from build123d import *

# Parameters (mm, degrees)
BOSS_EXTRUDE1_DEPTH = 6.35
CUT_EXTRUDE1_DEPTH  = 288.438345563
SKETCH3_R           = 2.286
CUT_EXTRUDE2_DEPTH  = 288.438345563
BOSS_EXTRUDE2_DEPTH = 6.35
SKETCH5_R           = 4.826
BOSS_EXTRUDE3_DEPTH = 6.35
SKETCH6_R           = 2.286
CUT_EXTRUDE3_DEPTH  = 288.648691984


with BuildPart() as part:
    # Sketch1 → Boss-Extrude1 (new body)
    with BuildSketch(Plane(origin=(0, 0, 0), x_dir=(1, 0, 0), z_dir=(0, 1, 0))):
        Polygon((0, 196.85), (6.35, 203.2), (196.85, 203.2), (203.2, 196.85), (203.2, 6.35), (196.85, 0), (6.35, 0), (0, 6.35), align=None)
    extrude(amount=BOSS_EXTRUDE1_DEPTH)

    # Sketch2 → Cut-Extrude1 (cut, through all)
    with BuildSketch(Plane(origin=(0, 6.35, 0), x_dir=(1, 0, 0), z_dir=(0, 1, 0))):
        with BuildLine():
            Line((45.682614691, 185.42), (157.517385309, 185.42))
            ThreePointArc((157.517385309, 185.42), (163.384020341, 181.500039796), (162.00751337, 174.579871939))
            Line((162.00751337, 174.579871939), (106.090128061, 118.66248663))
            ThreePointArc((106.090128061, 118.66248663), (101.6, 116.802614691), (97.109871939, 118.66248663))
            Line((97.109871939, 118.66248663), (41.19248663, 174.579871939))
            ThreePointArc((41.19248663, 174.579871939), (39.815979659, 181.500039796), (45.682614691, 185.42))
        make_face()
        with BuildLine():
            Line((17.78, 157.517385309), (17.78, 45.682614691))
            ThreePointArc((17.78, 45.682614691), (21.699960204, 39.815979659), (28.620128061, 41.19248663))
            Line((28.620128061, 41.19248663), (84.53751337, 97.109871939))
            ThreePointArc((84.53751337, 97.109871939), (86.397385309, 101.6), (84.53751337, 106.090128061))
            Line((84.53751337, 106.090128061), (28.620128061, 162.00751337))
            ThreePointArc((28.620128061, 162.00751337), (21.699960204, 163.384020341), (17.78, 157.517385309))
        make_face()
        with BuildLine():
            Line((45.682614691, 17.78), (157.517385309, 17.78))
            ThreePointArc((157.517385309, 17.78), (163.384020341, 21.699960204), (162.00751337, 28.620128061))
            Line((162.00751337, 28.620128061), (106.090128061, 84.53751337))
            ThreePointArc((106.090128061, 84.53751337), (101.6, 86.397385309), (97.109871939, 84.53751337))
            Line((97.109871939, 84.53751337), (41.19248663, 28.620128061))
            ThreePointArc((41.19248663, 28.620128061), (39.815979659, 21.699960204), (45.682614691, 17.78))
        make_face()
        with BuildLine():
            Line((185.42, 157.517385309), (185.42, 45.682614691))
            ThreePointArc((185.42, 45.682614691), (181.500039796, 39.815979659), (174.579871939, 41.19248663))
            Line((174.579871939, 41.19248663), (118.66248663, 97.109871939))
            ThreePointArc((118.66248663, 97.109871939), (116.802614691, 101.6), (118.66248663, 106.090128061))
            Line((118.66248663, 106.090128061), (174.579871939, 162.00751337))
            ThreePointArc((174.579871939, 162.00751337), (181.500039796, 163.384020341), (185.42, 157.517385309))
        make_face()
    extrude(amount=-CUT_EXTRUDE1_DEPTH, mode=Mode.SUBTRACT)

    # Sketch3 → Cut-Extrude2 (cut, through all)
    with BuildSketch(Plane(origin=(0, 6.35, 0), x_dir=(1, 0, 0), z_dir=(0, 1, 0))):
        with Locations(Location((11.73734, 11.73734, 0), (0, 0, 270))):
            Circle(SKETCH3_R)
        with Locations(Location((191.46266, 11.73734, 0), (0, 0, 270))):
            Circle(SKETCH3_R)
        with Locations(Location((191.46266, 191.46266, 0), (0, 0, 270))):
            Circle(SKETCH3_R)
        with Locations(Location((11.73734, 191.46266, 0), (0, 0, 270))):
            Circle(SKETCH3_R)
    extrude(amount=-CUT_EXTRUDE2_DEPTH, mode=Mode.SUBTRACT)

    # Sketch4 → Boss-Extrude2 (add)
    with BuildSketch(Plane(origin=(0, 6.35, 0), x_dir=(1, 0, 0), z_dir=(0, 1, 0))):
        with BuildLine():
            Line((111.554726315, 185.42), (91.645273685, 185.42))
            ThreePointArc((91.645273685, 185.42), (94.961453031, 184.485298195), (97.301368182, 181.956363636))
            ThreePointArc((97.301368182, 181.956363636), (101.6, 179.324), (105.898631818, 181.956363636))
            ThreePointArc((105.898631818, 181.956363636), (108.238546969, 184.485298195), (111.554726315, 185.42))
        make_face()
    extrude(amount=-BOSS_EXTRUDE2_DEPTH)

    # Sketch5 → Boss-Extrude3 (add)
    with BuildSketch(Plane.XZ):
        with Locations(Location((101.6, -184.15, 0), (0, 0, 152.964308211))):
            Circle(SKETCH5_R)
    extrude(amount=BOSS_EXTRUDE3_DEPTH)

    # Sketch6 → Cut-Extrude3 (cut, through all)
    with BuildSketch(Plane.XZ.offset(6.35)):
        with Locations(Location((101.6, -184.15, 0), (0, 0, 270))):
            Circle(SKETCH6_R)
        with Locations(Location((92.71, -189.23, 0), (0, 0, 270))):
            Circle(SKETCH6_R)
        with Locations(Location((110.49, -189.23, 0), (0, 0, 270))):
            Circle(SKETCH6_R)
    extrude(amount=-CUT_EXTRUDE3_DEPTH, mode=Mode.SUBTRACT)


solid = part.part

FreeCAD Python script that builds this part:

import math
import FreeCAD as App
import Part
import Sketcher
from FreeCAD import Vector
Q = App.Units.Quantity

doc = App.newDocument("Part")
body = doc.addObject("PartDesign::Body", "Body")

sketch1 = body.newObject("Sketcher::SketchObject", "Sketch")
sketch1.AttachmentSupport = (doc.getObject("XZ_Plane"), [""])
sketch1.MapMode = "FlatFace"
sketch1.addGeometry(Part.LineSegment(Vector(6, -203, 0), Vector(0, -197, 0)), False)
sketch1.addGeometry(Part.LineSegment(Vector(0, -197, 0), Vector(0, -6, 0)), False)
sketch1.addGeometry(Part.LineSegment(Vector(0, -6, 0), Vector(6, 0, 0)), False)
sketch1.addGeometry(Part.LineSegment(Vector(6, 0, 0), Vector(197, 0, 0)), False)
sketch1.addGeometry(Part.LineSegment(Vector(197, 0, 0), Vector(203, -6, 0)), False)
sketch1.addGeometry(Part.LineSegment(Vector(203, -6, 0), Vector(203, -197, 0)), False)
sketch1.addGeometry(Part.LineSegment(Vector(203, -197, 0), Vector(197, -203, 0)), False)
sketch1.addGeometry(Part.LineSegment(Vector(197, -203, 0), Vector(6, -203, 0)), False)
sketch1.addConstraint(Sketcher.Constraint("Coincident", 0, 2, 1, 1))
sketch1.addConstraint(Sketcher.Constraint("Coincident", 1, 2, 2, 1))
sketch1.addConstraint(Sketcher.Constraint("Coincident", 2, 2, 3, 1))
sketch1.addConstraint(Sketcher.Constraint("Coincident", 3, 2, 4, 1))
sketch1.addConstraint(Sketcher.Constraint("Coincident", 4, 2, 5, 1))
sketch1.addConstraint(Sketcher.Constraint("Coincident", 5, 2, 6, 1))
sketch1.addConstraint(Sketcher.Constraint("Coincident", 6, 2, 7, 1))
sketch1.addConstraint(Sketcher.Constraint("Coincident", 7, 2, 0, 1))
sketch1.addConstraint(Sketcher.Constraint("Vertical", 1))
sketch1.addConstraint(Sketcher.Constraint("Horizontal", 3))
sketch1.addConstraint(Sketcher.Constraint("Vertical", 5))
sketch1.addConstraint(Sketcher.Constraint("Horizontal", 7))
sketch1.addConstraint(Sketcher.Constraint("PointOnObject", 0, 2, -2))
sketch1.addConstraint(Sketcher.Constraint("PointOnObject", 2, 2, -1))
sketch1.addConstraint(Sketcher.Constraint("Perpendicular", 0, 2))
sketch1.addConstraint(Sketcher.Constraint("Perpendicular", 2, 4))
sketch1.addConstraint(Sketcher.Constraint("Perpendicular", 4, 6))
sketch1.addConstraint(Sketcher.Constraint("Horizontal", 1, 2, 4, 2))
sketch1.addConstraint(Sketcher.Constraint("Horizontal", 0, 2, 5, 2))
sketch1.addConstraint(Sketcher.Constraint("Vertical", 3, 2, 6, 2))
sketch1.addConstraint(Sketcher.Constraint("Vertical", 2, 2, 7, 2))
sketch1.addConstraint(Sketcher.Constraint("Equal", 7, 1))
sketch1.addConstraint(Sketcher.Constraint("DistanceX", 3, 1, 3, 2, Q("7.5 in")))
sketch1.addConstraint(Sketcher.Constraint("DistanceX", -1, 1, 4, 2, Q("8 in")))
pad1 = body.newObject("PartDesign::Pad", "Pad")
pad1.Profile = sketch1
pad1.Length = Q("0.25 in")
pad1.Reversed = True

sketch2 = body.newObject("Sketcher::SketchObject", "Sketch001")
sketch2.AttachmentSupport = (doc.getObject("XZ_Plane"), [""])
sketch2.MapMode = "FlatFace"
sketch2.AttachmentOffset = App.Placement(Vector(0, 0, -0.25 * 25.4), App.Rotation())
sketch2.addGeometry(Part.LineSegment(Vector(158, -185, 0), Vector(46, -185, 0)), False)
sketch2.addGeometry(Part.ArcOfCircle(Part.Circle(Vector(46, -179, 0), Vector(0, 0, 1), 6), math.radians(135), math.radians(270)), False)
sketch2.addGeometry(Part.LineSegment(Vector(41, -175, 0), Vector(97, -119, 0)), False)
sketch2.addGeometry(Part.ArcOfCircle(Part.Circle(Vector(102, -123, 0), Vector(0, 0, 1), 6), math.radians(45), math.radians(135)), False)
sketch2.addGeometry(Part.LineSegment(Vector(106, -119, 0), Vector(162, -175, 0)), False)
sketch2.addGeometry(Part.ArcOfCircle(Part.Circle(Vector(158, -179, 0), Vector(0, 0, 1), 6), math.radians(-90), math.radians(45)), False)
sketch2.addGeometry(Part.LineSegment(Vector(18, -158, 0), Vector(18, -46, 0)), False)
sketch2.addGeometry(Part.ArcOfCircle(Part.Circle(Vector(24, -46, 0), Vector(0, 0, 1), 6), math.radians(45), math.radians(180)), False)
sketch2.addGeometry(Part.LineSegment(Vector(29, -41, 0), Vector(85, -97, 0)), False)
sketch2.addGeometry(Part.ArcOfCircle(Part.Circle(Vector(80, -102, 0), Vector(0, 0, 1), 6), math.radians(-45), math.radians(45)), False)
sketch2.addGeometry(Part.LineSegment(Vector(85, -106, 0), Vector(29, -162, 0)), False)
sketch2.addGeometry(Part.ArcOfCircle(Part.Circle(Vector(24, -158, 0), Vector(0, 0, 1), 6), math.radians(180), math.radians(315)), False)
sketch2.addGeometry(Part.LineSegment(Vector(46, -18, 0), Vector(158, -18, 0)), False)
sketch2.addGeometry(Part.ArcOfCircle(Part.Circle(Vector(158, -24, 0), Vector(0, 0, 1), 6), math.radians(-45), math.radians(90)), False)
sketch2.addGeometry(Part.LineSegment(Vector(162, -29, 0), Vector(106, -85, 0)), False)
sketch2.addGeometry(Part.ArcOfCircle(Part.Circle(Vector(102, -80, 0), Vector(0, 0, 1), 6), math.radians(-135), math.radians(-45)), False)
sketch2.addGeometry(Part.LineSegment(Vector(97, -85, 0), Vector(41, -29, 0)), False)
sketch2.addGeometry(Part.ArcOfCircle(Part.Circle(Vector(46, -24, 0), Vector(0, 0, 1), 6), math.radians(90), math.radians(225)), False)
sketch2.addGeometry(Part.LineSegment(Vector(185, -46, 0), Vector(185, -158, 0)), False)
sketch2.addGeometry(Part.ArcOfCircle(Part.Circle(Vector(179, -158, 0), Vector(0, 0, 1), 6), math.radians(-135), math.radians(0)), False)
sketch2.addGeometry(Part.LineSegment(Vector(175, -162, 0), Vector(119, -106, 0)), False)
sketch2.addGeometry(Part.ArcOfCircle(Part.Circle(Vector(123, -102, 0), Vector(0, 0, 1), 6), math.radians(135), math.radians(225)), False)
sketch2.addGeometry(Part.LineSegment(Vector(119, -97, 0), Vector(175, -41, 0)), False)
sketch2.addGeometry(Part.ArcOfCircle(Part.Circle(Vector(179, -46, 0), Vector(0, 0, 1), 6), math.radians(0), math.radians(135)), False)
sketch2.addConstraint(Sketcher.Constraint("Tangent", 0, 2, 1, 2))
sketch2.addConstraint(Sketcher.Constraint("Tangent", 1, 1, 2, 1))
sketch2.addConstraint(Sketcher.Constraint("Tangent", 2, 2, 3, 2))
sketch2.addConstraint(Sketcher.Constraint("Tangent", 3, 1, 4, 1))
sketch2.addConstraint(Sketcher.Constraint("Tangent", 4, 2, 5, 2))
sketch2.addConstraint(Sketcher.Constraint("Tangent", 5, 1, 0, 1))
sketch2.addConstraint(Sketcher.Constraint("Tangent", 6, 2, 7, 2))
sketch2.addConstraint(Sketcher.Constraint("Tangent", 7, 1, 8, 1))
sketch2.addConstraint(Sketcher.Constraint("Tangent", 8, 2, 9, 2))
sketch2.addConstraint(Sketcher.Constraint("Tangent", 9, 1, 10, 1))
sketch2.addConstraint(Sketcher.Constraint("Tangent", 10, 2, 11, 2))
sketch2.addConstraint(Sketcher.Constraint("Tangent", 11, 1, 6, 1))
sketch2.addConstraint(Sketcher.Constraint("Tangent", 12, 2, 13, 2))
sketch2.addConstraint(Sketcher.Constraint("Tangent", 13, 1, 14, 1))
sketch2.addConstraint(Sketcher.Constraint("Tangent", 14, 2, 15, 2))
sketch2.addConstraint(Sketcher.Constraint("Tangent", 15, 1, 16, 1))
sketch2.addConstraint(Sketcher.Constraint("Tangent", 16, 2, 17, 2))
sketch2.addConstraint(Sketcher.Constraint("Tangent", 17, 1, 12, 1))
sketch2.addConstraint(Sketcher.Constraint("Tangent", 18, 2, 19, 2))
sketch2.addConstraint(Sketcher.Constraint("Tangent", 19, 1, 20, 1))
sketch2.addConstraint(Sketcher.Constraint("Tangent", 20, 2, 21, 2))
sketch2.addConstraint(Sketcher.Constraint("Tangent", 21, 1, 22, 1))
sketch2.addConstraint(Sketcher.Constraint("Tangent", 22, 2, 23, 2))
sketch2.addConstraint(Sketcher.Constraint("Tangent", 23, 1, 18, 1))
sketch2.addConstraint(Sketcher.Constraint("Horizontal", 0))
sketch2.addConstraint(Sketcher.Constraint("Vertical", 6))
sketch2.addConstraint(Sketcher.Constraint("Horizontal", 12))
sketch2.addConstraint(Sketcher.Constraint("Vertical", 18))
sketch2.addConstraint(Sketcher.Constraint("Equal", 1, 3))
sketch2.addConstraint(Sketcher.Constraint("Equal", 3, 5))
sketch2.addConstraint(Sketcher.Constraint("Equal", 5, 7))
sketch2.addConstraint(Sketcher.Constraint("Equal", 7, 9))
sketch2.addConstraint(Sketcher.Constraint("Equal", 9, 11))
sketch2.addConstraint(Sketcher.Constraint("Equal", 11, 13))
sketch2.addConstraint(Sketcher.Constraint("Equal", 13, 15))
sketch2.addConstraint(Sketcher.Constraint("Equal", 15, 17))
sketch2.addConstraint(Sketcher.Constraint("Equal", 17, 19))
sketch2.addConstraint(Sketcher.Constraint("Equal", 19, 21))
sketch2.addConstraint(Sketcher.Constraint("Equal", 21, 23))
sketch2.addConstraint(Sketcher.Constraint("Perpendicular", 2, 4))
sketch2.addConstraint(Sketcher.Constraint("Parallel", 4, 8))
sketch2.addConstraint(Sketcher.Constraint("Perpendicular", 8, 10))
sketch2.addConstraint(Sketcher.Constraint("Parallel", 10, 14))
sketch2.addConstraint(Sketcher.Constraint("Perpendicular", 14, 16))
sketch2.addConstraint(Sketcher.Constraint("Parallel", 16, 20))
sketch2.addConstraint(Sketcher.Constraint("Perpendicular", 20, 22))
sketch2.addConstraint(Sketcher.Constraint("Horizontal", 11, 3, 19, 3))
sketch2.addConstraint(Sketcher.Constraint("Horizontal", 9, 3, 21, 3))
sketch2.addConstraint(Sketcher.Constraint("Horizontal", 7, 3, 23, 3))
sketch2.addConstraint(Sketcher.Constraint("Vertical", 5, 3, 13, 3))
sketch2.addConstraint(Sketcher.Constraint("Vertical", 3, 3, 15, 3))
sketch2.addConstraint(Sketcher.Constraint("Equal", 12, 6))
sketch2.addConstraint(Sketcher.Constraint("Radius", 1, Q("0.25 in")))
sketch2.addConstraint(Sketcher.Constraint("DistanceX", -1, 1, 3, 3, Q("4 in")))
sketch2.addConstraint(Sketcher.Constraint("DistanceY", 9, 3, -1, 1, Q("4 in")))
sketch2.addConstraint(Sketcher.Constraint("DistanceY", 0, 2, -1, 1, Q("7.3 in")))
sketch2.addConstraint(Sketcher.Constraint("DistanceX", -1, 1, 6, 2, Q("0.7 in")))
sketch2.addConstraint(Sketcher.Constraint("DistanceY", 12, 2, -1, 1, Q("0.7 in")))
sketch2.addConstraint(Sketcher.Constraint("DistanceX", -1, 1, 18, 2, Q("7.3 in")))
sketch2.addConstraint(Sketcher.Constraint("DistanceX", 0, 2, 0, 1, 111.834771))
pocket1 = body.newObject("PartDesign::Pocket", "Pocket")
pocket1.Profile = sketch2
pocket1.Type = "ThroughAll"
pocket1.Reversed = True

sketch3 = body.newObject("Sketcher::SketchObject", "Sketch002")
sketch3.AttachmentSupport = (doc.getObject("XZ_Plane"), [""])
sketch3.MapMode = "FlatFace"
sketch3.AttachmentOffset = App.Placement(Vector(0, 0, -0.25 * 25.4), App.Rotation())
sketch3.addGeometry(Part.Circle(Vector(11.7, -11.7, 0), Vector(0, 0, 1), 2.3), False)
sketch3.addGeometry(Part.Circle(Vector(191.5, -11.7, 0), Vector(0, 0, 1), 2.3), False)
sketch3.addGeometry(Part.Circle(Vector(191.5, -191.5, 0), Vector(0, 0, 1), 2.3), False)
sketch3.addGeometry(Part.Circle(Vector(11.7, -191.5, 0), Vector(0, 0, 1), 2.3), False)
sketch3.addConstraint(Sketcher.Constraint("Equal", 0, 1))
sketch3.addConstraint(Sketcher.Constraint("Equal", 1, 2))
sketch3.addConstraint(Sketcher.Constraint("Equal", 2, 3))
sketch3.addConstraint(Sketcher.Constraint("Horizontal", 0, 3, 1, 3))
sketch3.addConstraint(Sketcher.Constraint("Horizontal", 2, 3, 3, 3))
sketch3.addConstraint(Sketcher.Constraint("Vertical", 1, 3, 2, 3))
sketch3.addConstraint(Sketcher.Constraint("Vertical", 0, 3, 3, 3))
sketch3.addConstraint(Sketcher.Constraint("Diameter", 0, Q("0.18 in")))
sketch3.addConstraint(Sketcher.Constraint("DistanceX", -1, 1, 0, 3, Q("0.4621 in")))
sketch3.addConstraint(Sketcher.Constraint("DistanceY", 0, 3, -1, 1, Q("0.4621 in")))
sketch3.addConstraint(Sketcher.Constraint("DistanceX", -1, 1, 1, 3, Q("7.5379 in")))
sketch3.addConstraint(Sketcher.Constraint("DistanceY", 2, 3, -1, 1, Q("7.5379 in")))
pocket2 = body.newObject("PartDesign::Pocket", "Pocket001")
pocket2.Profile = sketch3
pocket2.Type = "ThroughAll"
pocket2.Reversed = True

sketch4 = body.newObject("Sketcher::SketchObject", "Sketch003")
sketch4.AttachmentSupport = (doc.getObject("XZ_Plane"), [""])
sketch4.MapMode = "FlatFace"
sketch4.AttachmentOffset = App.Placement(Vector(0, 0, -0.25 * 25.4), App.Rotation())
sketch4.addGeometry(Part.LineSegment(Vector(111.6, -185.4, 0), Vector(91.6, -185.4, 0)), False)
sketch4.addGeometry(Part.ArcOfCircle(Part.Circle(Vector(91.6, -179.1, 0), Vector(0, 0, 1), 6.4), math.radians(-90), math.radians(-27)), False)
sketch4.addGeometry(Part.ArcOfCircle(Part.Circle(Vector(101.6, -184.2, 0), Vector(0, 0, 1), 4.8), math.radians(27), math.radians(153)), False)
sketch4.addGeometry(Part.ArcOfCircle(Part.Circle(Vector(111.6, -179.1, 0), Vector(0, 0, 1), 6.4), math.radians(-153), math.radians(-90)), False)
sketch4.addConstraint(Sketcher.Constraint("Tangent", 0, 2, 1, 1))
sketch4.addConstraint(Sketcher.Constraint("Tangent", 1, 2, 2, 2))
sketch4.addConstraint(Sketcher.Constraint("Tangent", 2, 1, 3, 1))
sketch4.addConstraint(Sketcher.Constraint("Tangent", 3, 2, 0, 1))
sketch4.addConstraint(Sketcher.Constraint("Horizontal", 0))
sketch4.addConstraint(Sketcher.Constraint("Equal", 1, 3))
sketch4.addConstraint(Sketcher.Constraint("Radius", 1, Q("0.25 in")))
sketch4.addConstraint(Sketcher.Constraint("Radius", 2, Q("0.19 in")))
sketch4.addConstraint(Sketcher.Constraint("DistanceX", -1, 1, 2, 3, Q("4 in")))
sketch4.addConstraint(Sketcher.Constraint("DistanceY", 0, 2, -1, 1, Q("7.3 in")))
sketch4.addConstraint(Sketcher.Constraint("DistanceY", 2, 3, 1, 3, Q("0.2 in")))
pad2 = body.newObject("PartDesign::Pad", "Pad001")
pad2.Profile = sketch4
pad2.Length = Q("0.25 in")

sketch5 = body.newObject("Sketcher::SketchObject", "Sketch004")
sketch5.AttachmentSupport = (doc.getObject("XZ_Plane"), [""])
sketch5.MapMode = "FlatFace"
sketch5.addGeometry(Part.Circle(Vector(101.6, -184.2, 0), Vector(0, 0, 1), 4.8), False)
sketch5.addConstraint(Sketcher.Constraint("Diameter", 0, Q("0.38 in")))
sketch5.addConstraint(Sketcher.Constraint("DistanceX", -1, 1, 0, 3, Q("4 in")))
sketch5.addConstraint(Sketcher.Constraint("DistanceY", 0, 3, -1, 1, Q("7.25 in")))
pad3 = body.newObject("PartDesign::Pad", "Pad002")
pad3.Profile = sketch5
pad3.Length = Q("0.25 in")

sketch6 = body.newObject("Sketcher::SketchObject", "Sketch005")
sketch6.AttachmentSupport = (doc.getObject("XZ_Plane"), [""])
sketch6.MapMode = "FlatFace"
sketch6.AttachmentOffset = App.Placement(Vector(0, 0, 0.25 * 25.4), App.Rotation())
sketch6.addGeometry(Part.Circle(Vector(101.6, -184.2, 0), Vector(0, 0, 1), 2.3), False)
sketch6.addGeometry(Part.Circle(Vector(92.7, -189.2, 0), Vector(0, 0, 1), 2.3), False)
sketch6.addGeometry(Part.Circle(Vector(110.5, -189.2, 0), Vector(0, 0, 1), 2.3), False)
sketch6.addConstraint(Sketcher.Constraint("Equal", 0, 1))
sketch6.addConstraint(Sketcher.Constraint("Equal", 1, 2))
sketch6.addConstraint(Sketcher.Constraint("Horizontal", 1, 3, 2, 3))
sketch6.addConstraint(Sketcher.Constraint("Diameter", 0, Q("0.18 in")))
sketch6.addConstraint(Sketcher.Constraint("DistanceX", -1, 1, 0, 3, Q("4 in")))
sketch6.addConstraint(Sketcher.Constraint("DistanceY", 1, 3, 0, 3, Q("0.2 in")))
sketch6.addConstraint(Sketcher.Constraint("DistanceX", 1, 3, 2, 3, Q("0.7 in")))
sketch6.addConstraint(Sketcher.Constraint("DistanceY", 0, 3, -1, 1, Q("7.25 in")))
sketch6.addConstraint(Sketcher.Constraint("DistanceX", -1, 1, 1, 3, Q("3.65 in")))
pocket3 = body.newObject("PartDesign::Pocket", "Pocket002")
pocket3.Profile = sketch6
pocket3.Type = "ThroughAll"

doc.recompute()
